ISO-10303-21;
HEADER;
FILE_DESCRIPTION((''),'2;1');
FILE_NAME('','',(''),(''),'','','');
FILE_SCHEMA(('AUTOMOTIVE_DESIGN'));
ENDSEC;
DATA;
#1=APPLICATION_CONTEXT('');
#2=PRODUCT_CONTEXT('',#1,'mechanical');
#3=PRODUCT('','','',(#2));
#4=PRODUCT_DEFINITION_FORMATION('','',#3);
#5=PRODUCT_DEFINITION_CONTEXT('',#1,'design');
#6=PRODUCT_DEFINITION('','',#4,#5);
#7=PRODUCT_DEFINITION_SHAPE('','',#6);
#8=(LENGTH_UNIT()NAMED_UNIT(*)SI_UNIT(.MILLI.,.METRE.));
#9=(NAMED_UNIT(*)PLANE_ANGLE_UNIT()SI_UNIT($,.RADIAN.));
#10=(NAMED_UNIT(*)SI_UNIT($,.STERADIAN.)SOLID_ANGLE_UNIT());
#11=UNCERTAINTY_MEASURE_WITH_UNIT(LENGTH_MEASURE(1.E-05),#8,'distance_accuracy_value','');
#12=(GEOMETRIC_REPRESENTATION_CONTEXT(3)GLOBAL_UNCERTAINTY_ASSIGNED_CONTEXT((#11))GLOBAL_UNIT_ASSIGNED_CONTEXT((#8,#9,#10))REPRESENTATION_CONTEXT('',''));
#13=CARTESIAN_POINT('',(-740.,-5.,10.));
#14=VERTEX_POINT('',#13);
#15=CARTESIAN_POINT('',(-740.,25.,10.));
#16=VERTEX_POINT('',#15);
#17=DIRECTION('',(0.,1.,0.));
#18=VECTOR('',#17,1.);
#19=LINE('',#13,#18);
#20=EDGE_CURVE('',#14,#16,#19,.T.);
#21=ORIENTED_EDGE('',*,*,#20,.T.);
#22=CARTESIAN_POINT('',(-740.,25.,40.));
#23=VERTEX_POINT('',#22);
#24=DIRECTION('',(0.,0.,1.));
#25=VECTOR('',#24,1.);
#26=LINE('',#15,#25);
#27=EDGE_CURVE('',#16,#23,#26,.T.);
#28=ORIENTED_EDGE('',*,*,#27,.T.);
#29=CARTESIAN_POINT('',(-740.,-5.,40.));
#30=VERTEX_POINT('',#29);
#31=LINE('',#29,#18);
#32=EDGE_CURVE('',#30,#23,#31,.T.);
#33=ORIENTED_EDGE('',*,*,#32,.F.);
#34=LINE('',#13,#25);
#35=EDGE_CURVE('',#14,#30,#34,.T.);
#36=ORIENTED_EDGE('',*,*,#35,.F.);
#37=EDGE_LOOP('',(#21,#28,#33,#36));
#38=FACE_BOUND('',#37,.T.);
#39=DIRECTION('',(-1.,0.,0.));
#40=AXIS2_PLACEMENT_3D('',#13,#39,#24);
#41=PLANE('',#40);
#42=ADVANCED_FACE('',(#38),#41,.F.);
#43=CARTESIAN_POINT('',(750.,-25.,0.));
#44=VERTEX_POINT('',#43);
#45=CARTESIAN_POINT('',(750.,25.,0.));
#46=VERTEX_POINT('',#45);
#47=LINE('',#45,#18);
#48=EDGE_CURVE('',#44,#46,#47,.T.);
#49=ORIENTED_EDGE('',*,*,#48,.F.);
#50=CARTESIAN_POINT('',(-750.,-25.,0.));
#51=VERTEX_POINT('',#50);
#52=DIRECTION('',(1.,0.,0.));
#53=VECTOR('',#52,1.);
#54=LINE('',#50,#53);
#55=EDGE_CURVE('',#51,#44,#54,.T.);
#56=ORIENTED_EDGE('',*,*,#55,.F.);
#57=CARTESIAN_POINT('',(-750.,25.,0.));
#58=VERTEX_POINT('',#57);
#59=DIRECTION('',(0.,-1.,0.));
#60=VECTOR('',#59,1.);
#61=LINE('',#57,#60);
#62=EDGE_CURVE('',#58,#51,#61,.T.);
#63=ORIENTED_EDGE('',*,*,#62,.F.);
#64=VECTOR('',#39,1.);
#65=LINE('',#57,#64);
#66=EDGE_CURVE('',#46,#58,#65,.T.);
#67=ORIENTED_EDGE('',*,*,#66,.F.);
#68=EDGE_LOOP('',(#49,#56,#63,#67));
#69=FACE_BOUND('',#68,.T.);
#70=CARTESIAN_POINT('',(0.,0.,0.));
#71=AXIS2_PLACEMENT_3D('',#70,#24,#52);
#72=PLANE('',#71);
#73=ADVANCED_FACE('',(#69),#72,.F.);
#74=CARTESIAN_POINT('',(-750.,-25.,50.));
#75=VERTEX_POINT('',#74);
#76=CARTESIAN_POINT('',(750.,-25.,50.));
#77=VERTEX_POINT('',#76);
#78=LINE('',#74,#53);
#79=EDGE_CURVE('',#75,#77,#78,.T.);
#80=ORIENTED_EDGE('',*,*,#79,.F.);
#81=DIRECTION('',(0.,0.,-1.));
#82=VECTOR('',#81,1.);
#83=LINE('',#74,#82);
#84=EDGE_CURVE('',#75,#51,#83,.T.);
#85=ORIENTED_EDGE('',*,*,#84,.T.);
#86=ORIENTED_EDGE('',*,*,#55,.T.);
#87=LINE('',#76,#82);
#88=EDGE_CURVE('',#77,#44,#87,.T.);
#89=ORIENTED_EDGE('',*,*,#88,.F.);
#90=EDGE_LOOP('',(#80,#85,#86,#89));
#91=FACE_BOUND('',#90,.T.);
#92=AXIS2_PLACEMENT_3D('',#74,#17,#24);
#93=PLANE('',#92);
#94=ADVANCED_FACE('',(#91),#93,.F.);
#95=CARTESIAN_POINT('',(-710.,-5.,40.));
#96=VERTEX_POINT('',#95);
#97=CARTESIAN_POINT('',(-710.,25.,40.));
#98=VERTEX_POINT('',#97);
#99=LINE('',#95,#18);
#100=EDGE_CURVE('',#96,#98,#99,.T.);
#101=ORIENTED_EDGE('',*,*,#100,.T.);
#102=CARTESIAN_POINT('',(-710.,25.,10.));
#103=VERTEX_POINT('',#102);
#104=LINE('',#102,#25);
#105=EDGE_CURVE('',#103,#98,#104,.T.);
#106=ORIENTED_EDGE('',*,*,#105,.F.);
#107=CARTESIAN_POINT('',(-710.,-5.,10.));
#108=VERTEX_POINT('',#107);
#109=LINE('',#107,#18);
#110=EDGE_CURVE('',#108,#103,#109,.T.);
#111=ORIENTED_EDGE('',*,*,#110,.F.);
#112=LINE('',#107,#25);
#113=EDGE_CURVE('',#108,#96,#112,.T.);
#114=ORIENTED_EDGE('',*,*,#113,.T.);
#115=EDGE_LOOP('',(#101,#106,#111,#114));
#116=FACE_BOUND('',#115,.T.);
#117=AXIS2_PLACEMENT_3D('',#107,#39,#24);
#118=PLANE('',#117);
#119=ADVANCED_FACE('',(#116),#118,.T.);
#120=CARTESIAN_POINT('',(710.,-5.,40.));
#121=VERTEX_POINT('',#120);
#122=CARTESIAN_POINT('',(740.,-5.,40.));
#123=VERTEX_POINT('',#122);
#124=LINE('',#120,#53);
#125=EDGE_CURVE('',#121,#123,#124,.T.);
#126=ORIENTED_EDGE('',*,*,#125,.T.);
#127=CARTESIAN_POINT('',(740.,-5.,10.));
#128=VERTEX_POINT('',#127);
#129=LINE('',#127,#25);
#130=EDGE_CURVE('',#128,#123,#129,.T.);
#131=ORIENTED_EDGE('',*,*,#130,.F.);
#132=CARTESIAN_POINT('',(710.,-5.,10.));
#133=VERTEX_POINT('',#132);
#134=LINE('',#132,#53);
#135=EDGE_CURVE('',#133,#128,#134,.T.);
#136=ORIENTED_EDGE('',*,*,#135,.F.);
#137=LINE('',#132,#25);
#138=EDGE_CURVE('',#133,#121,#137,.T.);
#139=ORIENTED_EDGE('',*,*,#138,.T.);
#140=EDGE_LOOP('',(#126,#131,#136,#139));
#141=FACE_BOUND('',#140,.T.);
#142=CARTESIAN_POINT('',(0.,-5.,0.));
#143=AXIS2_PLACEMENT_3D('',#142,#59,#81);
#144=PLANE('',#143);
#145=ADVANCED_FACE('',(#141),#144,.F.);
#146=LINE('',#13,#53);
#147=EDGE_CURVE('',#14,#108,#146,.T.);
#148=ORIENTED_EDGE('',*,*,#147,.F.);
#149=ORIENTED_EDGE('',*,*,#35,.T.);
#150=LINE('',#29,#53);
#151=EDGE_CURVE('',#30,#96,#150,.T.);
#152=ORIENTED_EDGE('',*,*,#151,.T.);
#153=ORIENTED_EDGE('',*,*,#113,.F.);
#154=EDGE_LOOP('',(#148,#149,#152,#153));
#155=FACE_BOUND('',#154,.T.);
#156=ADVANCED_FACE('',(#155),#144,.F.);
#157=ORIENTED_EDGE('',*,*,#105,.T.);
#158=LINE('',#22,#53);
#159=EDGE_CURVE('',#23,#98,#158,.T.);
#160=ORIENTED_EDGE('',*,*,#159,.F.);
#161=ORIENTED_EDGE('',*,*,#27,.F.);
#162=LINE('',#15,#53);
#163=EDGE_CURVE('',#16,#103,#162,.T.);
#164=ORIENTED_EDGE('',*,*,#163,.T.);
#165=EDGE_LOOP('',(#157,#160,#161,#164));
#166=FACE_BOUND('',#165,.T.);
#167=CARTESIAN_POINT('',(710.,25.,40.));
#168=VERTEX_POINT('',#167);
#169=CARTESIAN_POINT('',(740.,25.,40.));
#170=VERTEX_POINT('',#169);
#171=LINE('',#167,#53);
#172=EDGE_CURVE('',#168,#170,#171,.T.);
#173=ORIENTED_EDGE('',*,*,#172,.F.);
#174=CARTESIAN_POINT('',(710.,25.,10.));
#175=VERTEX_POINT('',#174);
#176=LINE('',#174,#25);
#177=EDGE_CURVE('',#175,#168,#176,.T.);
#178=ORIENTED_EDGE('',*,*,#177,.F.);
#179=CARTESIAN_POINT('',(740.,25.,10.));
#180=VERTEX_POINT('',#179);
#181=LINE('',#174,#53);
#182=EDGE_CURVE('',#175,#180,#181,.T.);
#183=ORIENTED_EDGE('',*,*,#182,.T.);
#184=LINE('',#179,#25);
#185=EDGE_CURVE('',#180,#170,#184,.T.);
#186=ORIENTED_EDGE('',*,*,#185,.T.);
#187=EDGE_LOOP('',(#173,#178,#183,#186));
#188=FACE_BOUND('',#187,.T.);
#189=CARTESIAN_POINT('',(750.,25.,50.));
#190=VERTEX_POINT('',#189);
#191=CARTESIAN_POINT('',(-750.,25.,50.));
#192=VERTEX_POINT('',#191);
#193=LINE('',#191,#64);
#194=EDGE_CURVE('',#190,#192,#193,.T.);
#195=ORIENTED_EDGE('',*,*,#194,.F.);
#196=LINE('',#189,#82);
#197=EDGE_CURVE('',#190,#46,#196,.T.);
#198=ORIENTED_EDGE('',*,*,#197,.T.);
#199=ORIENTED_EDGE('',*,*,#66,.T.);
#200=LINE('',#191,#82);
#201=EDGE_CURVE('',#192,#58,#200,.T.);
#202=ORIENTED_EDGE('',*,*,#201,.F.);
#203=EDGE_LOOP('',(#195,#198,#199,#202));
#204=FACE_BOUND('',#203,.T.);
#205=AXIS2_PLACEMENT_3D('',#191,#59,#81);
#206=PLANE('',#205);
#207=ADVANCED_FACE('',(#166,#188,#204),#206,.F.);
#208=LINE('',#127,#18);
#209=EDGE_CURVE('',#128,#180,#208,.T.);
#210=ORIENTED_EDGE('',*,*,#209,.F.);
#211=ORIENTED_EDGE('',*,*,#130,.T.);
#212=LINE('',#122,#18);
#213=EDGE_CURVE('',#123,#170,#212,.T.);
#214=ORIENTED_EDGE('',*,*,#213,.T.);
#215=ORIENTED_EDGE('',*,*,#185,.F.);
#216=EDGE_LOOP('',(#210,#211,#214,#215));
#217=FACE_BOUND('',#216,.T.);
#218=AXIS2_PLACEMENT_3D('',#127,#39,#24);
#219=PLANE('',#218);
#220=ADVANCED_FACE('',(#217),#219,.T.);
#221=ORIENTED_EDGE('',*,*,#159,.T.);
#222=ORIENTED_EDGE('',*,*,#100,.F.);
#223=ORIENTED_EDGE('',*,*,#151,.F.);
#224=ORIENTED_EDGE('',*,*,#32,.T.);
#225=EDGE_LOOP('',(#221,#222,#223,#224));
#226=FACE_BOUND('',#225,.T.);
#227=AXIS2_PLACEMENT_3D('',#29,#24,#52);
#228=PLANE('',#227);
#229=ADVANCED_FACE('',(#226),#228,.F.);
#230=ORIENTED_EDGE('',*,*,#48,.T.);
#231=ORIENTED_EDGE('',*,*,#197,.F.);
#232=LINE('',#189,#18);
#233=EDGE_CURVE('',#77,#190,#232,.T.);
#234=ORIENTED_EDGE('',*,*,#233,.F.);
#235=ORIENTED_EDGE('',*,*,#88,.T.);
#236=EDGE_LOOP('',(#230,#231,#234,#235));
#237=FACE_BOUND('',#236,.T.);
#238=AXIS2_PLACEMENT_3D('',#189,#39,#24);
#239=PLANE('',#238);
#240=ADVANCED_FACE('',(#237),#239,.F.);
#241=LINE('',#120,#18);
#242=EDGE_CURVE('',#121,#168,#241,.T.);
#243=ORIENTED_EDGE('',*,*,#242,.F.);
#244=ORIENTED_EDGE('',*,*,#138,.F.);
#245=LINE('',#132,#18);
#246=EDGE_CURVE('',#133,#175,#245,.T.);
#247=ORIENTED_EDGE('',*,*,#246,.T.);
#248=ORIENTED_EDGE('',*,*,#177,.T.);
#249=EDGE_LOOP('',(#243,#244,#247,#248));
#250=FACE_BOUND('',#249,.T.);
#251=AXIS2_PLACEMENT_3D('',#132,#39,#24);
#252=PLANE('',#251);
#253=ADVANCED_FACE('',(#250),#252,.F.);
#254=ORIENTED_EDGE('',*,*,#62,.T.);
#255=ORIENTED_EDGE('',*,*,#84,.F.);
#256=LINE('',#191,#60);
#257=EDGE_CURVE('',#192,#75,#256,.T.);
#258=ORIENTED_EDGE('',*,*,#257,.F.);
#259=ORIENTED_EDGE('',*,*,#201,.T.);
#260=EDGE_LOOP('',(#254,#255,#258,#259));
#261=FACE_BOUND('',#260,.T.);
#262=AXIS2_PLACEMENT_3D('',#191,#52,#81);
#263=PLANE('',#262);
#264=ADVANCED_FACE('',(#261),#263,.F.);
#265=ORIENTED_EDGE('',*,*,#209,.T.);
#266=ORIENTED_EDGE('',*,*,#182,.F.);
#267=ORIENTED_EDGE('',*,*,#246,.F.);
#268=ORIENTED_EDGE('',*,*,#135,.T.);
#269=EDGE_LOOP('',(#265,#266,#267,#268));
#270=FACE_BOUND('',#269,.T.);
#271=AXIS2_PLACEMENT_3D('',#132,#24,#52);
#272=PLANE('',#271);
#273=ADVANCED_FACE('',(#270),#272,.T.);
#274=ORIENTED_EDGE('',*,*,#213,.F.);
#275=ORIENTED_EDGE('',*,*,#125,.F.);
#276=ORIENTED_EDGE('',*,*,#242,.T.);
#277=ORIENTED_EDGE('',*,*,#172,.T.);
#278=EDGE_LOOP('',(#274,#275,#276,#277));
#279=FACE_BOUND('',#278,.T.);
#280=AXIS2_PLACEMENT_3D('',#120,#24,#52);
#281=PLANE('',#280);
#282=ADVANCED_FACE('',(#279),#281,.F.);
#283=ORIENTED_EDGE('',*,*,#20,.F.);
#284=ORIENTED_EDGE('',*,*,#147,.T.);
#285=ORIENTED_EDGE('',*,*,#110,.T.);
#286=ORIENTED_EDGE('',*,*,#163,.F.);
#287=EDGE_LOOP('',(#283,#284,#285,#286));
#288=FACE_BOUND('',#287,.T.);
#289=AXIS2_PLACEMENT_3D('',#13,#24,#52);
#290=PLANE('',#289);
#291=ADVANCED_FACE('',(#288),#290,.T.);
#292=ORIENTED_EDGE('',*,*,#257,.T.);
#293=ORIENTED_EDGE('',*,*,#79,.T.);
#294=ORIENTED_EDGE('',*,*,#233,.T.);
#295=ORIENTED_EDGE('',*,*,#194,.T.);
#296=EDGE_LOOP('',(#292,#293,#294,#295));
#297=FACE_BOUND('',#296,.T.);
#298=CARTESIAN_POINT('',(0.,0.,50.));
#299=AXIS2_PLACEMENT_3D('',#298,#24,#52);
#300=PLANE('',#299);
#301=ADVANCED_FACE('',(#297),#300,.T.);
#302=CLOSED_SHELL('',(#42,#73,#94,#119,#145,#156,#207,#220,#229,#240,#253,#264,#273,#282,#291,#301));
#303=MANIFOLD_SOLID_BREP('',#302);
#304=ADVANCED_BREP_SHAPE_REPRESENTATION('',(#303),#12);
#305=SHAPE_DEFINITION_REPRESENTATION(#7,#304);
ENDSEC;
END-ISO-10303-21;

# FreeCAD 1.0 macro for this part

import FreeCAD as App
import Part
import Sketcher

doc = App.newDocument("Part")
body = doc.addObject("PartDesign::Body", "Body")

# Sketch on XY plane
sketch1 = body.newObject("Sketcher::SketchObject", "Sketch")
sketch1.AttachmentSupport = (doc.getObject("XY_Plane"), [""])
sketch1.MapMode = "FlatFace"
sketch1.addGeometry([
    Part.LineSegment(App.Vector(-750, 25, 0), App.Vector(-750, -25, 0)),
    Part.LineSegment(App.Vector(-750, -25, 0), App.Vector(750, -25, 0)),
    Part.LineSegment(App.Vector(750, -25, 0), App.Vector(750, 25, 0)),
    Part.LineSegment(App.Vector(750, 25, 0), App.Vector(-750, 25, 0)),
], False)
sketch1.addConstraint([
    Sketcher.Constraint("Coincident", 0, 2, 1, 1),
    Sketcher.Constraint("Coincident", 1, 2, 2, 1),
    Sketcher.Constraint("Coincident", 2, 2, 3, 1),
    Sketcher.Constraint("Coincident", 3, 2, 0, 1),
    Sketcher.Constraint("Vertical", 0),
    Sketcher.Constraint("Horizontal", 1),
    Sketcher.Constraint("Vertical", 2),
    Sketcher.Constraint("Horizontal", 3),
    Sketcher.Constraint("Symmetric", 0, 2, 2, 2, -1, 1),
    Sketcher.Constraint("DistanceX", 1, 1, 1, 2, 1500.0),
    Sketcher.Constraint("DistanceY", 0, 2, 0, 1, 50.0),
])
pad1 = body.newObject("PartDesign::Pad", "Pad")
pad1.Profile = sketch1
pad1.Length = 50

# Sketch on XZ plane
sketch2 = body.newObject("Sketcher::SketchObject", "Sketch001")
sketch2.AttachmentSupport = (doc.getObject("XZ_Plane"), [""])
sketch2.MapMode = "FlatFace"
sketch2.AttachmentOffset = App.Placement(App.Vector(0, 0, -25), App.Rotation())
sketch2.addGeometry([
    Part.LineSegment(App.Vector(710, 10, 0), App.Vector(710, 40, 0)),  # 0
    Part.LineSegment(App.Vector(710, 40, 0), App.Vector(740, 40, 0)),  # 1
    Part.LineSegment(App.Vector(740, 40, 0), App.Vector(740, 10, 0)),  # 2
    Part.LineSegment(App.Vector(740, 10, 0), App.Vector(710, 10, 0)),  # 3
    Part.LineSegment(App.Vector(-740, 10, 0), App.Vector(-740, 40, 0)),  # 4
    Part.LineSegment(App.Vector(-740, 40, 0), App.Vector(-710, 40, 0)),  # 5
    Part.LineSegment(App.Vector(-710, 40, 0), App.Vector(-710, 10, 0)),  # 6
    Part.LineSegment(App.Vector(-710, 10, 0), App.Vector(-740, 10, 0)),  # 7
], False)
sketch2.addConstraint([
    Sketcher.Constraint("Coincident", 0, 2, 1, 1),
    Sketcher.Constraint("Coincident", 1, 2, 2, 1),
    Sketcher.Constraint("Coincident", 2, 2, 3, 1),
    Sketcher.Constraint("Coincident", 3, 2, 0, 1),
    Sketcher.Constraint("Coincident", 4, 2, 5, 1),
    Sketcher.Constraint("Coincident", 5, 2, 6, 1),
    Sketcher.Constraint("Coincident", 6, 2, 7, 1),
    Sketcher.Constraint("Coincident", 7, 2, 4, 1),
    Sketcher.Constraint("Vertical", 0),
    Sketcher.Constraint("Horizontal", 1),
    Sketcher.Constraint("Vertical", 2),
    Sketcher.Constraint("Horizontal", 3),
    Sketcher.Constraint("Vertical", 4),
    Sketcher.Constraint("Horizontal", 5),
    Sketcher.Constraint("Vertical", 6),
    Sketcher.Constraint("Horizontal", 7),
    Sketcher.Constraint("Symmetric", 1, 2, 4, 2, -2),
    Sketcher.Constraint("Symmetric", 3, 2, 6, 2, -2),
    Sketcher.Constraint("Equal", 7, 0),
    Sketcher.Constraint("DistanceX", 1, 1, 1, 2, 30.0),
    Sketcher.Constraint("DistanceX", -1, 1, 0, 2, 710.0),
    Sketcher.Constraint("DistanceY", -1, 1, 0, 2, 40.0),
])
pocket1 = body.newObject("PartDesign::Pocket", "Pocket")
pocket1.Profile = sketch2
pocket1.Length = 30
pocket1.Reversed = True

doc.recompute()
